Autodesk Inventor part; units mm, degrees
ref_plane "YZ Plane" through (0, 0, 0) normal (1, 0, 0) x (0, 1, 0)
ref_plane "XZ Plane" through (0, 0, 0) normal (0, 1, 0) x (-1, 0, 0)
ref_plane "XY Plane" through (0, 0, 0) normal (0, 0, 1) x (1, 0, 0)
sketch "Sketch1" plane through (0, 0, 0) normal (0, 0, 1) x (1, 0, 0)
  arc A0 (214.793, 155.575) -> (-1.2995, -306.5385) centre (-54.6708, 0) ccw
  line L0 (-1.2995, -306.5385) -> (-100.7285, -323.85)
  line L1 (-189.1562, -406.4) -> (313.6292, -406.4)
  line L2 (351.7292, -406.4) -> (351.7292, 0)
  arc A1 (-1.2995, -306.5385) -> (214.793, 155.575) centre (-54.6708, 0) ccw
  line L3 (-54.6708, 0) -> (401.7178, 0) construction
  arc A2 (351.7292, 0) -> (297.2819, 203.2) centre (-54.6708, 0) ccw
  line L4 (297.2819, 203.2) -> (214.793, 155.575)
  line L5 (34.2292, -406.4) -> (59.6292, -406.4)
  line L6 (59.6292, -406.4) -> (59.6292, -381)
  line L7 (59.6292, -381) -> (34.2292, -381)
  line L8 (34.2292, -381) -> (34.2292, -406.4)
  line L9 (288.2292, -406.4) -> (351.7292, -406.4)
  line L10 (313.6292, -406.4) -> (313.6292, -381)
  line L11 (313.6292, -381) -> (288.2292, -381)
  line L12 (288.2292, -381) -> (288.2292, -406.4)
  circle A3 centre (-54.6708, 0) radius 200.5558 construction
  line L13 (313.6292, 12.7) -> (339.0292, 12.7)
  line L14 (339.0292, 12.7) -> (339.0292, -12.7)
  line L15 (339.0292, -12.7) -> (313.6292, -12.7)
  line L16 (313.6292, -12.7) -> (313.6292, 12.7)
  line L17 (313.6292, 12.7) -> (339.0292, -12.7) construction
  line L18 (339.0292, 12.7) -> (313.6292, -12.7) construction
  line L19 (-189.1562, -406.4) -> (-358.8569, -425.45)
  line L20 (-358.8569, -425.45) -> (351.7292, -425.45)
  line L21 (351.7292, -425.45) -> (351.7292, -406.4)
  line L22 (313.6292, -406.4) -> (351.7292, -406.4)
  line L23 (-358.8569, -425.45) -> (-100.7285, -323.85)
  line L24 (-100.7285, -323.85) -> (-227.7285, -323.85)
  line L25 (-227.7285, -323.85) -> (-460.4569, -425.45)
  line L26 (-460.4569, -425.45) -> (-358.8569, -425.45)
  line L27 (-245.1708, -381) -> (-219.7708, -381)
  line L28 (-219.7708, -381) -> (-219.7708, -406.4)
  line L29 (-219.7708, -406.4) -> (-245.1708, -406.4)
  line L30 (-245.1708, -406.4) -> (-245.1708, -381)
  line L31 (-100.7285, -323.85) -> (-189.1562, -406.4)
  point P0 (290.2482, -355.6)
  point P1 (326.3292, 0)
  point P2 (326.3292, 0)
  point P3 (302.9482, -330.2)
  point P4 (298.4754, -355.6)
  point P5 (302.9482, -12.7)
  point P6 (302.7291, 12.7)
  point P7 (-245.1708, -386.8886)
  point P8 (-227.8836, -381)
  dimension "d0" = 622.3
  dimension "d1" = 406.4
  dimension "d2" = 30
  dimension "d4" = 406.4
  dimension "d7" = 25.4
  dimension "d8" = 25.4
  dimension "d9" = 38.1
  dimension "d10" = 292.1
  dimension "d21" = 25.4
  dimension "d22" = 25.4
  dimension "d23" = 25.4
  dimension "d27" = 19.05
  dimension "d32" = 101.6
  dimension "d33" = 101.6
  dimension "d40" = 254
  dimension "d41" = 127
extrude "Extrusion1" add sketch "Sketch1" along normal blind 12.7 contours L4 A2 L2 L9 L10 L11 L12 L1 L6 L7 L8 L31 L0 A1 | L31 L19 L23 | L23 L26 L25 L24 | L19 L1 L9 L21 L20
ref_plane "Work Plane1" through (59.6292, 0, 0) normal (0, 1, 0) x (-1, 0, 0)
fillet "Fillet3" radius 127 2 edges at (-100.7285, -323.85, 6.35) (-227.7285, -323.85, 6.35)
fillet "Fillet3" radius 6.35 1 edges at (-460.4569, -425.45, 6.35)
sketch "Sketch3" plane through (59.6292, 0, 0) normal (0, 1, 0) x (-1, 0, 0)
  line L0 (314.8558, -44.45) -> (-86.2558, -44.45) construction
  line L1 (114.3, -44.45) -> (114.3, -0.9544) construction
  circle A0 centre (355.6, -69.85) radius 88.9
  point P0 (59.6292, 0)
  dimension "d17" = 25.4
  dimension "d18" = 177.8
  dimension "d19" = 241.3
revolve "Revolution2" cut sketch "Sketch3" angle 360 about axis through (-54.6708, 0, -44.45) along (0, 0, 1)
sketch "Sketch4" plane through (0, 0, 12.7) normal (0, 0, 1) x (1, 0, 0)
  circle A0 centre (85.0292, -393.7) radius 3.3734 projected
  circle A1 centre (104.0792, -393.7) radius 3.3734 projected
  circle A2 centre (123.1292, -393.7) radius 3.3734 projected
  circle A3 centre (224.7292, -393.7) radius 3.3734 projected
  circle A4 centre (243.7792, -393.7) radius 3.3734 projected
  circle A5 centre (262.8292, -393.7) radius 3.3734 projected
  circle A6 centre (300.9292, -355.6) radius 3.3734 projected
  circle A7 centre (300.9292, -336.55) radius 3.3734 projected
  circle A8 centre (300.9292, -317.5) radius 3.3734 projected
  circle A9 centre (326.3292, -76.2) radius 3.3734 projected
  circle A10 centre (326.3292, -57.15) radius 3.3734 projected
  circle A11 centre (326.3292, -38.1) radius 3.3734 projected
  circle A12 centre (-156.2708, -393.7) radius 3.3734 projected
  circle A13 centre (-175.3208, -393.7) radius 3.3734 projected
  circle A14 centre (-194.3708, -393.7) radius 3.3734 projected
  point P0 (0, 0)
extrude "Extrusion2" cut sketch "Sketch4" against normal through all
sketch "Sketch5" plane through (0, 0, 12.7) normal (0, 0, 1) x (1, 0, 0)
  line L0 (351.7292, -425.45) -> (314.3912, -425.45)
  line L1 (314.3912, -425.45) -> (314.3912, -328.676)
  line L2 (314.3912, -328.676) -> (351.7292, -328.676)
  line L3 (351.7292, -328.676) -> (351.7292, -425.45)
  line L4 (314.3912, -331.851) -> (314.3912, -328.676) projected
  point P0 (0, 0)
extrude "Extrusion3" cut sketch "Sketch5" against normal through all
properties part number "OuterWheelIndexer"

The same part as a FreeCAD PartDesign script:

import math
import FreeCAD as App
import Part
import Sketcher

V = App.Vector
Q = App.Units.Quantity


def edges_at(feature, points):
    """Names of the edges that pass closest to the given points."""
    edges = feature.Shape.Edges
    near = lambda p: min(range(len(edges)), key=lambda i: edges[i].distToShape(Part.Vertex(*p))[0])
    return sorted({f"Edge{near(p) + 1}" for p in points})

doc = App.newDocument("Part")
params = doc.addObject("Spreadsheet::Sheet", "Params")
for row, (alias, value) in enumerate([
    ("sketch1_radius", "16 in"),
    ("sketch1_width", "5 in"),
    ("sketch1_width2", "1 in"),
    ("sketch1_radius2", "12.25 in"),
    ("pad1_length", "0.5 in"),
    ("fillet_radius", "5 in"),
    ("fillet2_radius", "0.25 in"),
    ("sketch2_diameter", "7 in"),
    ("groove_angle", "360 deg"),
    ("sketch3_diameter", "0.265622 in"),
    ("sketch4_width", "1.47 in"),
    ("sketch4_height", "3.81 in"),
], start=1):
    params.set(f"A{row}", alias)
    params.set(f"B{row}", "=" + value)
    params.setAlias(f"B{row}", alias)

body = doc.addObject("PartDesign::Body", "Body")

# Sketch on XY plane
sketch1 = body.newObject("Sketcher::SketchObject", "Sketch")
sketch1.AttachmentSupport = (doc.getObject("XY_Plane"), [""])
sketch1.MapMode = "FlatFace"
sketch1.addGeometry([
    Part.LineSegment(V(297.2819, 203.2, 0), V(214.793, 155.575, 0)),  # 0
    Part.ArcOfCircle(Part.Circle(V(-54.6708, 0, 0), V(0, 0, 1), 311.149996), math.radians(-80.123261), math.radians(30)),  # 1
    Part.LineSegment(V(-1.2995, -306.5385, 0), V(-100.7285, -323.85, 0)),  # 2
    Part.LineSegment(V(-100.7285, -323.85, 0), V(-227.7285, -323.85, 0)),  # 3
    Part.LineSegment(V(-227.7285, -323.85, 0), V(-460.4569, -425.45, 0)),  # 4
    Part.LineSegment(V(-460.4569, -425.45, 0), V(351.7292, -425.45, 0)),  # 5
    Part.LineSegment(V(351.7292, -425.45, 0), V(351.7292, 0, 0)),  # 6
    Part.ArcOfCircle(Part.Circle(V(-54.6708, 0, 0), V(0, 0, 1), 406.4), math.radians(0), math.radians(30.000002)),  # 7
    Part.LineSegment(V(313.6292, -381, 0), V(313.6292, -406.4, 0)),  # 8
    Part.LineSegment(V(313.6292, -406.4, 0), V(288.2292, -406.4, 0)),  # 9
    Part.LineSegment(V(288.2292, -406.4, 0), V(288.2292, -381, 0)),  # 10
    Part.LineSegment(V(288.2292, -381, 0), V(313.6292, -381, 0)),  # 11
    Part.LineSegment(V(59.6292, -381, 0), V(59.6292, -406.4, 0)),  # 12
    Part.LineSegment(V(59.6292, -406.4, 0), V(34.2292, -406.4, 0)),  # 13
    Part.LineSegment(V(34.2292, -406.4, 0), V(34.2292, -381, 0)),  # 14
    Part.LineSegment(V(34.2292, -381, 0), V(59.6292, -381, 0)),  # 15
    Part.LineSegment(V(313.6292, -12.7, 0), V(313.6292, 12.7, 0)),  # 16
    Part.LineSegment(V(313.6292, 12.7, 0), V(339.0292, 12.7, 0)),  # 17
    Part.LineSegment(V(339.0292, 12.7, 0), V(339.0292, -12.7, 0)),  # 18
    Part.LineSegment(V(339.0292, -12.7, 0), V(313.6292, -12.7, 0)),  # 19
    Part.LineSegment(V(-245.1708, -381, 0), V(-219.7708, -381, 0)),  # 20
    Part.LineSegment(V(-219.7708, -381, 0), V(-219.7708, -406.4, 0)),  # 21
    Part.LineSegment(V(-219.7708, -406.4, 0), V(-245.1708, -406.4, 0)),  # 22
    Part.LineSegment(V(-245.1708, -406.4, 0), V(-245.1708, -381, 0)),  # 23
], False)
sketch1.addConstraint([
    Sketcher.Constraint("Coincident", 0, 2, 1, 2),
    Sketcher.Constraint("Tangent", 1, 1, 2, 1),
    Sketcher.Constraint("Coincident", 2, 2, 3, 1),
    Sketcher.Constraint("Coincident", 3, 2, 4, 1),
    Sketcher.Constraint("Coincident", 4, 2, 5, 1),
    Sketcher.Constraint("Coincident", 5, 2, 6, 1),
    Sketcher.Constraint("Tangent", 6, 2, 7, 1),
    Sketcher.Constraint("Coincident", 7, 2, 0, 1),
    Sketcher.Constraint("Coincident", 8, 2, 9, 1),
    Sketcher.Constraint("Coincident", 9, 2, 10, 1),
    Sketcher.Constraint("Coincident", 10, 2, 11, 1),
    Sketcher.Constraint("Coincident", 11, 2, 8, 1),
    Sketcher.Constraint("Coincident", 12, 2, 13, 1),
    Sketcher.Constraint("Coincident", 13, 2, 14, 1),
    Sketcher.Constraint("Coincident", 14, 2, 15, 1),
    Sketcher.Constraint("Coincident", 15, 2, 12, 1),
    Sketcher.Constraint("Coincident", 16, 2, 17, 1),
    Sketcher.Constraint("Coincident", 17, 2, 18, 1),
    Sketcher.Constraint("Coincident", 18, 2, 19, 1),
    Sketcher.Constraint("Coincident", 19, 2, 16, 1),
    Sketcher.Constraint("Coincident", 20, 2, 21, 1),
    Sketcher.Constraint("Coincident", 21, 2, 22, 1),
    Sketcher.Constraint("Coincident", 22, 2, 23, 1),
    Sketcher.Constraint("Coincident", 23, 2, 20, 1),
    Sketcher.Constraint("Horizontal", 3),
    Sketcher.Constraint("Horizontal", 5),
    Sketcher.Constraint("Vertical", 6),
    Sketcher.Constraint("Vertical", 8),
    Sketcher.Constraint("Horizontal", 9),
    Sketcher.Constraint("Vertical", 10),
    Sketcher.Constraint("Horizontal", 11),
    Sketcher.Constraint("Vertical", 12),
    Sketcher.Constraint("Horizontal", 13),
    Sketcher.Constraint("Vertical", 14),
    Sketcher.Constraint("Horizontal", 15),
    Sketcher.Constraint("Vertical", 16),
    Sketcher.Constraint("Horizontal", 17),
    Sketcher.Constraint("Vertical", 18),
    Sketcher.Constraint("Horizontal", 19),
    Sketcher.Constraint("Horizontal", 20),
    Sketcher.Constraint("Vertical", 21),
    Sketcher.Constraint("Horizontal", 22),
    Sketcher.Constraint("Vertical", 23),
    Sketcher.Constraint("Coincident", 7, 3, 1, 3),
    Sketcher.Constraint("PointOnObject", 1, 3, -1),
    Sketcher.Constraint("Horizontal", 9, 2, 12, 2),
    Sketcher.Constraint("Horizontal", 11, 2, 14, 2),
    Sketcher.Constraint("Horizontal", 15, 2, 20, 2),
    Sketcher.Constraint("Horizontal", 13, 2, 21, 2),
    Sketcher.Constraint("Vertical", 11, 2, 16, 2),
    Sketcher.Constraint("Equal", 11, 13),
    Sketcher.Constraint("Equal", 15, 17),
    Sketcher.Constraint("Equal", 19, 20),
    Sketcher.Constraint("Equal", 22, 8),
    Sketcher.Constraint("Equal", 14, 16),
    Sketcher.Constraint("Radius", 7, Q("16 in")),
    Sketcher.Constraint("DistanceX", 3, 2, 3, 1, Q("5 in")),
    Sketcher.Constraint("DistanceX", 9, 2, 9, 1, Q("1 in")),
    Sketcher.Constraint("Radius", 1, Q("12.25 in")),
    Sketcher.Constraint("DistanceY", 8, 2, -1, 1, Q("16 in")),
    Sketcher.Constraint("DistanceY", 4, 2, 3, 2, Q("4 in")),
    Sketcher.Constraint("DistanceX", 12, 2, 8, 2, Q("10 in")),
    Sketcher.Constraint("DistanceX", 20, 2, 14, 2, Q("10 in")),
    Sketcher.Constraint("DistanceX", 8, 2, 5, 2, Q("1.5 in")),
    Sketcher.Constraint("DistanceY", 5, 2, 8, 2, Q("0.75 in")),
    Sketcher.Constraint("DistanceY", -1, 1, 7, 2, Q("8 in")),
    Sketcher.Constraint("Angle", 0, Q("-150 deg")),
    Sketcher.Constraint("DistanceY", -1, 1, 16, 2, Q("0.5 in")),
    Sketcher.Constraint("Distance", 4, Q("9.9976 in")),
    Sketcher.Constraint("DistanceX", 5, 1, 5, 2, 812.186),
    Sketcher.Constraint("DistanceX", 1, 3, -1, 1, Q("2.1524 in")),
])
sketch1.setExpression("Constraints[55]", "Params.sketch1_radius")
sketch1.setExpression("Constraints[56]", "Params.sketch1_width")
sketch1.setExpression("Constraints[57]", "Params.sketch1_width2")
sketch1.setExpression("Constraints[58]", "Params.sketch1_radius2")
pad1 = body.newObject("PartDesign::Pad", "Pad")
pad1.Profile = sketch1
pad1.setExpression("Length", "Params.pad1_length")
doc.recompute()

fillet = body.newObject("PartDesign::Fillet", "Fillet")
fillet.Base = (pad1, edges_at(pad1, [(-100.728, -323.85, 6.35), (-227.728, -323.85, 6.35)]))
fillet.setExpression("Radius", "Params.fillet_radius")
doc.recompute()

fillet2 = body.newObject("PartDesign::Fillet", "Fillet001")
fillet2.Base = (fillet, edges_at(fillet, [(-460.457, -425.45, 6.35)]))
fillet2.setExpression("Radius", "Params.fillet2_radius")

# Sketch on XZ plane
sketch2 = body.newObject("Sketcher::SketchObject", "Sketch001")
sketch2.AttachmentSupport = (doc.getObject("XZ_Plane"), [""])
sketch2.MapMode = "FlatFace"
sketch2.addGeometry(Part.Circle(V(-295.9708, -69.85, 0), V(0, 0, 1), 88.9), False)
sketch2.addGeometry(Part.LineSegment(V(-54.6708, -69.85, 0), V(-54.6708, -59.85, 0)), True)  # axis
sketch2.addConstraint([
    Sketcher.Constraint("Vertical", 1),
    Sketcher.Constraint("Horizontal", 0, 3, 1, 1),
    Sketcher.Constraint("Diameter", 0, Q("7 in")),
    Sketcher.Constraint("DistanceX", 0, 3, 1, 1, Q("9.5 in")),
    Sketcher.Constraint("DistanceY", 0, 3, -1, 1, Q("2.75 in")),
    Sketcher.Constraint("DistanceY", 1, 1, 1, 2, Q("0.3937 in")),
    Sketcher.Constraint("DistanceX", 0, 3, -1, 1, Q("11.6524 in")),
])
sketch2.setExpression("Constraints[2]", "Params.sketch2_diameter")
groove = body.newObject("PartDesign::Groove", "Groove")
groove.Profile = sketch2
groove.ReferenceAxis = (sketch2, ["Axis0"])
groove.setExpression("Angle", "Params.groove_angle")

# Sketch on XY plane
sketch3 = body.newObject("Sketcher::SketchObject", "Sketch002")
sketch3.AttachmentSupport = (doc.getObject("XY_Plane"), [""])
sketch3.MapMode = "FlatFace"
sketch3.AttachmentOffset = App.Placement(V(0, 0, 0.5 * 25.4), App.Rotation())
sketch3.addGeometry([
    Part.Circle(V(85.0292, -393.7, 0), V(0, 0, 1), 3.3734),  # 0
    Part.Circle(V(104.0792, -393.7, 0), V(0, 0, 1), 3.3734),  # 1
    Part.Circle(V(123.1292, -393.7, 0), V(0, 0, 1), 3.3734),  # 2
    Part.Circle(V(224.7292, -393.7, 0), V(0, 0, 1), 3.3734),  # 3
    Part.Circle(V(243.7792, -393.7, 0), V(0, 0, 1), 3.3734),  # 4
    Part.Circle(V(262.8292, -393.7, 0), V(0, 0, 1), 3.3734),  # 5
    Part.Circle(V(300.9292, -355.6, 0), V(0, 0, 1), 3.3734),  # 6
    Part.Circle(V(300.9292, -336.55, 0), V(0, 0, 1), 3.3734),  # 7
    Part.Circle(V(300.9292, -317.5, 0), V(0, 0, 1), 3.3734),  # 8
    Part.Circle(V(326.3292, -76.2, 0), V(0, 0, 1), 3.3734),  # 9
    Part.Circle(V(326.3292, -57.15, 0), V(0, 0, 1), 3.3734),  # 10
    Part.Circle(V(326.3292, -38.1, 0), V(0, 0, 1), 3.3734),  # 11
    Part.Circle(V(-156.2708, -393.7, 0), V(0, 0, 1), 3.3734),  # 12
    Part.Circle(V(-175.3208, -393.7, 0), V(0, 0, 1), 3.3734),  # 13
    Part.Circle(V(-194.3708, -393.7, 0), V(0, 0, 1), 3.3734),  # 14
], False)
sketch3.addConstraint([
    Sketcher.Constraint("Equal", 0, 1),
    Sketcher.Constraint("Equal", 1, 2),
    Sketcher.Constraint("Equal", 2, 3),
    Sketcher.Constraint("Equal", 3, 4),
    Sketcher.Constraint("Equal", 4, 5),
    Sketcher.Constraint("Equal", 5, 6),
    Sketcher.Constraint("Equal", 6, 7),
    Sketcher.Constraint("Equal", 7, 8),
    Sketcher.Constraint("Equal", 8, 9),
    Sketcher.Constraint("Equal", 9, 10),
    Sketcher.Constraint("Equal", 10, 11),
    Sketcher.Constraint("Equal", 11, 12),
    Sketcher.Constraint("Equal", 12, 13),
    Sketcher.Constraint("Equal", 13, 14),
    Sketcher.Constraint("Horizontal", 0, 3, 1, 3),
    Sketcher.Constraint("Horizontal", 1, 3, 2, 3),
    Sketcher.Constraint("Horizontal", 2, 3, 3, 3),
    Sketcher.Constraint("Horizontal", 3, 3, 4, 3),
    Sketcher.Constraint("Horizontal", 4, 3, 5, 3),
    Sketcher.Constraint("Horizontal", 5, 3, 12, 3),
    Sketcher.Constraint("Horizontal", 12, 3, 13, 3),
    Sketcher.Constraint("Horizontal", 13, 3, 14, 3),
    Sketcher.Constraint("Vertical", 6, 3, 7, 3),
    Sketcher.Constraint("Vertical", 7, 3, 8, 3),
    Sketcher.Constraint("Vertical", 9, 3, 10, 3),
    Sketcher.Constraint("Vertical", 10, 3, 11, 3),
    Sketcher.Constraint("Diameter", 0, Q("0.265622 in")),
    Sketcher.Constraint("DistanceY", 6, 3, -1, 1, Q("14 in")),
    Sketcher.Constraint("DistanceY", 9, 3, -1, 1, Q("3 in")),
    Sketcher.Constraint("DistanceX", 2, 3, 3, 3, Q("4 in")),
    Sketcher.Constraint("DistanceX", 0, 3, 5, 3, Q("7 in")),
    Sketcher.Constraint("DistanceX", 3, 3, 6, 3, Q("3 in")),
    Sketcher.Constraint("DistanceY", 5, 3, 8, 3, Q("3 in")),
    Sketcher.Constraint("DistanceX", 8, 3, 9, 3, Q("1 in")),
    Sketcher.Constraint("DistanceY", 7, 3, 10, 3, Q("11 in")),
    Sketcher.Constraint("DistanceY", 8, 3, 11, 3, Q("11 in")),
    Sketcher.Constraint("DistanceX", 12, 3, 2, 3, Q("11 in")),
    Sketcher.Constraint("DistanceX", 13, 3, 1, 3, Q("11 in")),
    Sketcher.Constraint("DistanceX", 14, 3, 0, 3, Q("11 in")),
    Sketcher.Constraint("DistanceY", 0, 3, -1, 1, Q("15.5 in")),
    Sketcher.Constraint("DistanceX", 0, 3, 2, 3, Q("1.5 in")),
    Sketcher.Constraint("DistanceX", 1, 3, 4, 3, Q("5.5 in")),
    Sketcher.Constraint("DistanceY", 7, 3, -1, 1, Q("13.25 in")),
    Sketcher.Constraint("DistanceX", 0, 3, 1, 3, Q("0.75 in")),
    Sketcher.Constraint("DistanceX", -1, 1, 0, 3, Q("3.3476 in")),
])
sketch3.setExpression("Constraints[26]", "Params.sketch3_diameter")
pocket1 = body.newObject("PartDesign::Pocket", "Pocket")
pocket1.Profile = sketch3
pocket1.Type = "ThroughAll"

# Sketch on XY plane
sketch4 = body.newObject("Sketcher::SketchObject", "Sketch003")
sketch4.AttachmentSupport = (doc.getObject("XY_Plane"), [""])
sketch4.MapMode = "FlatFace"
sketch4.AttachmentOffset = App.Placement(V(0, 0, 0.5 * 25.4), App.Rotation())
sketch4.addGeometry([
    Part.LineSegment(V(314.3912, -425.45, 0), V(351.7292, -425.45, 0)),
    Part.LineSegment(V(351.7292, -425.45, 0), V(351.7292, -328.676, 0)),
    Part.LineSegment(V(351.7292, -328.676, 0), V(314.3912, -328.676, 0)),
    Part.LineSegment(V(314.3912, -328.676, 0), V(314.3912, -425.45, 0)),
], False)
sketch4.addConstraint([
    Sketcher.Constraint("Coincident", 0, 2, 1, 1),
    Sketcher.Constraint("Coincident", 1, 2, 2, 1),
    Sketcher.Constraint("Coincident", 2, 2, 3, 1),
    Sketcher.Constraint("Coincident", 3, 2, 0, 1),
    Sketcher.Constraint("Horizontal", 0),
    Sketcher.Constraint("Vertical", 1),
    Sketcher.Constraint("Horizontal", 2),
    Sketcher.Constraint("Vertical", 3),
    Sketcher.Constraint("DistanceX", 0, 1, 0, 2, Q("1.47 in")),
    Sketcher.Constraint("DistanceY", 1, 1, 1, 2, Q("3.81 in")),
    Sketcher.Constraint("DistanceY", 0, 2, -1, 1, Q("16.75 in")),
    Sketcher.Constraint("DistanceX", -1, 1, 0, 2, Q("13.8476 in")),
])
sketch4.setExpression("Constraints[8]", "Params.sketch4_width")
sketch4.setExpression("Constraints[9]", "Params.sketch4_height")
pocket2 = body.newObject("PartDesign::Pocket", "Pocket001")
pocket2.Profile = sketch4
pocket2.Type = "ThroughAll"

doc.recompute()
